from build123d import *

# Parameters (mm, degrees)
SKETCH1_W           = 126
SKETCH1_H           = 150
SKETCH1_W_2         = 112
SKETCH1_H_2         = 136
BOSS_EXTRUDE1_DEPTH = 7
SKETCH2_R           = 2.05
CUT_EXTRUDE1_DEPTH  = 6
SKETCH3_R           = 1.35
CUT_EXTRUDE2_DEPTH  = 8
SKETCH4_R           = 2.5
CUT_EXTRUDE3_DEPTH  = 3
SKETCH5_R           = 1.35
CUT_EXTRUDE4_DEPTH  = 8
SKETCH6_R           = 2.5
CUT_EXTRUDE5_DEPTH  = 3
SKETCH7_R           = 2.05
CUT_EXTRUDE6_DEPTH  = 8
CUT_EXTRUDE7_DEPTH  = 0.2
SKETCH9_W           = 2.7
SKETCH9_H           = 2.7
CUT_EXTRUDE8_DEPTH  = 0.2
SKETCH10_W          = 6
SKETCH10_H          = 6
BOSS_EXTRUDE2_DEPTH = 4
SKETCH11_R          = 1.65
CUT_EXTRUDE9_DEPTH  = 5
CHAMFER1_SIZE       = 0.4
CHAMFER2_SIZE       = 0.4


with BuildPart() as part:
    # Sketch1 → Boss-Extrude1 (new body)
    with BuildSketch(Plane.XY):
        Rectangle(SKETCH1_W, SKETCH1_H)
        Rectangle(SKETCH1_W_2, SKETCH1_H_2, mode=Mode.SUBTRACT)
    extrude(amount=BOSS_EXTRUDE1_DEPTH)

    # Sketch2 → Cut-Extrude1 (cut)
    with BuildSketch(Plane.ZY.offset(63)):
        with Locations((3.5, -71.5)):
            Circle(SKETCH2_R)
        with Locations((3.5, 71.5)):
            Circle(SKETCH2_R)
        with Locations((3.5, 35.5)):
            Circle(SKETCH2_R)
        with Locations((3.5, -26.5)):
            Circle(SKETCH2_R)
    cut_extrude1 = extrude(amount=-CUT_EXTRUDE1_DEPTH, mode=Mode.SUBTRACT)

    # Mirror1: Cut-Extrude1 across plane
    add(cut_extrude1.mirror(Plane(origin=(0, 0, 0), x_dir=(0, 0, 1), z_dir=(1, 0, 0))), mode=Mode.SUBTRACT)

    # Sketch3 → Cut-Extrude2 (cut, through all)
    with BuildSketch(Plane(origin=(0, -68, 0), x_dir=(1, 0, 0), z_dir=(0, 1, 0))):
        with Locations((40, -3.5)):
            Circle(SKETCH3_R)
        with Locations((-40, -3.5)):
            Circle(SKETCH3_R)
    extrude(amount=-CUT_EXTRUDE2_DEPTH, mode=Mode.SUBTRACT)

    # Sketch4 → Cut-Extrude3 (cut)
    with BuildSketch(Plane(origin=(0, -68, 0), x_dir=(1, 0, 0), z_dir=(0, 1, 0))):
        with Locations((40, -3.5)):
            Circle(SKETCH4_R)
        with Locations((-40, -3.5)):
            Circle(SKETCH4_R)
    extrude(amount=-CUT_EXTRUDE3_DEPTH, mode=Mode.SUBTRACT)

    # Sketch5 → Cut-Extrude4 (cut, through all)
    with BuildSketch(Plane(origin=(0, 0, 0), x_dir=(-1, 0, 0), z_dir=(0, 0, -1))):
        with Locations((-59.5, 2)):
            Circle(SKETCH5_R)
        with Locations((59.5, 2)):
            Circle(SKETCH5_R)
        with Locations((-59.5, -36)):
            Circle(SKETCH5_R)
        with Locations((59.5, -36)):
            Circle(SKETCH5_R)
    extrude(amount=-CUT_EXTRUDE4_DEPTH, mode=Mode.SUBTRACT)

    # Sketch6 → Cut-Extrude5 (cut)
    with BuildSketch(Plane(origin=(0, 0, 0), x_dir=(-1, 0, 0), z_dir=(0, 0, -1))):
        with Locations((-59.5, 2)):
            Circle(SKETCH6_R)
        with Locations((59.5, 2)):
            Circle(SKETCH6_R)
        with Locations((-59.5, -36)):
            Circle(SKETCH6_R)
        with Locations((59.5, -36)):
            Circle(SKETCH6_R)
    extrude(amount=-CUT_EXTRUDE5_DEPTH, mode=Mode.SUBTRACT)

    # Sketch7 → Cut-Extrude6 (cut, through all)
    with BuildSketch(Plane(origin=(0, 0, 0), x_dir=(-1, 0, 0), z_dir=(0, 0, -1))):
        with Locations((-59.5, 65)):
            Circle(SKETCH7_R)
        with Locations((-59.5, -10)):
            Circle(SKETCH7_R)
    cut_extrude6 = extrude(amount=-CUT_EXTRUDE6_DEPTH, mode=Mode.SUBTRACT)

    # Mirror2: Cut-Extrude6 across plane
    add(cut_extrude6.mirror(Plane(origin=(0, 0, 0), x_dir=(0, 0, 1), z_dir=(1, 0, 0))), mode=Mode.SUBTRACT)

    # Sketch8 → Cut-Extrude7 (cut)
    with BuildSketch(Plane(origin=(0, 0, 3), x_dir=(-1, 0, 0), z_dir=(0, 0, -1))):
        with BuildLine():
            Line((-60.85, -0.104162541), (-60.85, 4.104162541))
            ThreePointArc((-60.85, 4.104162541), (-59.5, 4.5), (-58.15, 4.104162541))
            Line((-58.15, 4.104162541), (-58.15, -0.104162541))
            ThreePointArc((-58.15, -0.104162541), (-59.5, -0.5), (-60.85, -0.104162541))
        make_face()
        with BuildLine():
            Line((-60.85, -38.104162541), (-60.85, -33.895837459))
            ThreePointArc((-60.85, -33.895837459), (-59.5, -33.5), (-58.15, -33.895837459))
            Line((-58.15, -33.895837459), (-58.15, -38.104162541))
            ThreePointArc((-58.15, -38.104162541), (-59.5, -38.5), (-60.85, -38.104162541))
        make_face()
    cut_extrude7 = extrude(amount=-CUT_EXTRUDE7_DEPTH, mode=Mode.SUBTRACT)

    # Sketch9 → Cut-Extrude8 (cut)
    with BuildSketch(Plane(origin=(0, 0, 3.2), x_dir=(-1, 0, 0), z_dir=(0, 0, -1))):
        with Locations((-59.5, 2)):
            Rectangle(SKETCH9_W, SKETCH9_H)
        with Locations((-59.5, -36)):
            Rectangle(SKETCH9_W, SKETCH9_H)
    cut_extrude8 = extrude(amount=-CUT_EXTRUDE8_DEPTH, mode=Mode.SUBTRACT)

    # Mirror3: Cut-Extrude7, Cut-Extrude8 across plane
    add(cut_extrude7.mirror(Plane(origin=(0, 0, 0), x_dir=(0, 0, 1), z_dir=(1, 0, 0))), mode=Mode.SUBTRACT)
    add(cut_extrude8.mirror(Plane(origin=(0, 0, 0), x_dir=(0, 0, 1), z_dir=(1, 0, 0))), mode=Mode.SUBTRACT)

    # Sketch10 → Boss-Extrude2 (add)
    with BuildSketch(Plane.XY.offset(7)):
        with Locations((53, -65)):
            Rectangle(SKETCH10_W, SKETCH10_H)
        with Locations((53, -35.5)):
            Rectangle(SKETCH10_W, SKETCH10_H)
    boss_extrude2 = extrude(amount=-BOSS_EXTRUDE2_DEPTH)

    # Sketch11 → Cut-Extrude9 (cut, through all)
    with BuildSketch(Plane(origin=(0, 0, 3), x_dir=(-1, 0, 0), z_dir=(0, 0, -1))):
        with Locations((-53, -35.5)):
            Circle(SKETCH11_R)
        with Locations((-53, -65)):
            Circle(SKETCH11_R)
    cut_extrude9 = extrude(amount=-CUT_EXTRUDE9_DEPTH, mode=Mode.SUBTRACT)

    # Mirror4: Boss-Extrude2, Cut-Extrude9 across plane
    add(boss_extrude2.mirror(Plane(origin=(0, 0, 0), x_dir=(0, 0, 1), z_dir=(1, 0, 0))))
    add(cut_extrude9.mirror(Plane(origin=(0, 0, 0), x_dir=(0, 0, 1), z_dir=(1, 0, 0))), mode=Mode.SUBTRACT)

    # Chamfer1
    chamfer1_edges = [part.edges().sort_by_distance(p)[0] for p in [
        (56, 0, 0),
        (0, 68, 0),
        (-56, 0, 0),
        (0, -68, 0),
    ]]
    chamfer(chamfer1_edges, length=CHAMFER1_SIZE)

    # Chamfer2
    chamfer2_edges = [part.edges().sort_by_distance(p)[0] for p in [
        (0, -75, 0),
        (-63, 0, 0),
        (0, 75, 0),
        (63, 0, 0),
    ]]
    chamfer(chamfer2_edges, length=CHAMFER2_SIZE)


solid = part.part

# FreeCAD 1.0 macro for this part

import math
import FreeCAD as App
import Part
import Sketcher
from FreeCAD import Vector
Q = App.Units.Quantity


def edges_at(feature, points):
    """Names of the edges that pass closest to the given points."""
    edges = feature.Shape.Edges
    near = lambda p: min(range(len(edges)), key=lambda i: edges[i].distToShape(Part.Vertex(*p))[0])
    return sorted({f"Edge{near(p) + 1}" for p in points})

doc = App.newDocument("Part")
body = doc.addObject("PartDesign::Body", "Body")

# Sketch on XY plane
sketch1 = body.newObject("Sketcher::SketchObject", "Sketch")
sketch1.AttachmentSupport = (doc.getObject("XY_Plane"), [""])
sketch1.MapMode = "FlatFace"
sketch1.addGeometry([
    Part.LineSegment(Vector(-63, 75, 0), Vector(-63, -75, 0)),  # 0
    Part.LineSegment(Vector(-63, -75, 0), Vector(63, -75, 0)),  # 1
    Part.LineSegment(Vector(63, -75, 0), Vector(63, 75, 0)),  # 2
    Part.LineSegment(Vector(63, 75, 0), Vector(-63, 75, 0)),  # 3
    Part.LineSegment(Vector(56, -68, 0), Vector(-56, -68, 0)),  # 4
    Part.LineSegment(Vector(-56, -68, 0), Vector(-56, 68, 0)),  # 5
    Part.LineSegment(Vector(-56, 68, 0), Vector(56, 68, 0)),  # 6
    Part.LineSegment(Vector(56, 68, 0), Vector(56, -68, 0)),  # 7
], False)
sketch1.addConstraint([
    Sketcher.Constraint("Coincident", 0, 2, 1, 1),
    Sketcher.Constraint("Coincident", 1, 2, 2, 1),
    Sketcher.Constraint("Coincident", 2, 2, 3, 1),
    Sketcher.Constraint("Coincident", 3, 2, 0, 1),
    Sketcher.Constraint("Coincident", 4, 2, 5, 1),
    Sketcher.Constraint("Coincident", 5, 2, 6, 1),
    Sketcher.Constraint("Coincident", 6, 2, 7, 1),
    Sketcher.Constraint("Coincident", 7, 2, 4, 1),
    Sketcher.Constraint("Vertical", 0),
    Sketcher.Constraint("Horizontal", 1),
    Sketcher.Constraint("Vertical", 2),
    Sketcher.Constraint("Horizontal", 3),
    Sketcher.Constraint("Horizontal", 4),
    Sketcher.Constraint("Vertical", 5),
    Sketcher.Constraint("Horizontal", 6),
    Sketcher.Constraint("Vertical", 7),
    Sketcher.Constraint("Symmetric", 0, 2, 2, 2, -1, 1),
    Sketcher.Constraint("Symmetric", 4, 2, 6, 2, -1, 1),
    Sketcher.Constraint("DistanceX", 1, 1, 1, 2, Q("126 mm")),
    Sketcher.Constraint("DistanceX", 4, 2, 4, 1, Q("112 mm")),
    Sketcher.Constraint("DistanceY", 0, 2, 0, 1, Q("150 mm")),
    Sketcher.Constraint("DistanceY", 5, 1, 5, 2, Q("136 mm")),
])
pad1 = body.newObject("PartDesign::Pad", "Pad")
pad1.Profile = sketch1
pad1.Length = 7

# Sketch on YZ plane
sketch2 = body.newObject("Sketcher::SketchObject", "Sketch001")
sketch2.AttachmentSupport = (doc.getObject("YZ_Plane"), [""])
sketch2.MapMode = "FlatFace"
sketch2.AttachmentOffset = App.Placement(Vector(0, 0, -63), App.Rotation())
sketch2.addGeometry([
    Part.Circle(Vector(-71.5, 3.5, 0), Vector(0, 0, 1), 2),
    Part.Circle(Vector(71.5, 3.5, 0), Vector(0, 0, 1), 2),
    Part.Circle(Vector(35.5, 3.5, 0), Vector(0, 0, 1), 2),
    Part.Circle(Vector(-26.5, 3.5, 0), Vector(0, 0, 1), 2),
], False)
sketch2.addConstraint([
    Sketcher.Constraint("Equal", 0, 1),
    Sketcher.Constraint("Equal", 1, 2),
    Sketcher.Constraint("Equal", 2, 3),
    Sketcher.Constraint("Symmetric", 0, 3, 1, 3, -2),
    Sketcher.Constraint("Horizontal", 1, 3, 2, 3),
    Sketcher.Constraint("Horizontal", 2, 3, 3, 3),
    Sketcher.Constraint("Diameter", 0, Q("4.1 mm")),
    Sketcher.Constraint("DistanceX", 0, 3, 1, 3, Q("143 mm")),
    Sketcher.Constraint("DistanceX", 2, 3, 1, 3, Q("36 mm")),
    Sketcher.Constraint("DistanceX", 0, 3, 3, 3, Q("45 mm")),
    Sketcher.Constraint("DistanceY", -1, 1, 0, 3, Q("3.5 mm")),
])
pocket1 = body.newObject("PartDesign::Pocket", "Pocket")
pocket1.Profile = sketch2
pocket1.Length = 6
pocket1.Reversed = True
doc.recompute()

mirrored = body.newObject("PartDesign::Mirrored", "Mirrored")
mirrored.Originals = [pocket1]
mirrored.MirrorPlane = (doc.getObject("YZ_Plane"), [""])
body.Tip = mirrored

# Sketch on XZ plane
sketch3 = body.newObject("Sketcher::SketchObject", "Sketch002")
sketch3.AttachmentSupport = (doc.getObject("XZ_Plane"), [""])
sketch3.MapMode = "FlatFace"
sketch3.AttachmentOffset = App.Placement(Vector(0, 0, 68), App.Rotation())
sketch3.addGeometry([
    Part.Circle(Vector(40, 3.5, 0), Vector(0, 0, 1), 1.4),
    Part.Circle(Vector(-40, 3.5, 0), Vector(0, 0, 1), 1.4),
], False)
sketch3.addConstraint([
    Sketcher.Constraint("Equal", 0, 1),
    Sketcher.Constraint("Symmetric", 0, 3, 1, 3, -2),
    Sketcher.Constraint("Diameter", 0, Q("2.7 mm")),
    Sketcher.Constraint("DistanceX", -1, 1, 0, 3, Q("40 mm")),
    Sketcher.Constraint("DistanceY", -1, 1, 0, 3, Q("3.5 mm")),
])
pocket2 = body.newObject("PartDesign::Pocket", "Pocket001")
pocket2.Profile = sketch3
pocket2.Type = "ThroughAll"
pocket2.Reversed = True

# Sketch on XZ plane
sketch4 = body.newObject("Sketcher::SketchObject", "Sketch003")
sketch4.AttachmentSupport = (doc.getObject("XZ_Plane"), [""])
sketch4.MapMode = "FlatFace"
sketch4.AttachmentOffset = App.Placement(Vector(0, 0, 68), App.Rotation())
sketch4.addGeometry([
    Part.Circle(Vector(40, 3.5, 0), Vector(0, 0, 1), 2.5),
    Part.Circle(Vector(-40, 3.5, 0), Vector(0, 0, 1), 2.5),
], False)
sketch4.addConstraint([
    Sketcher.Constraint("Equal", 0, 1),
    Sketcher.Constraint("Symmetric", 0, 3, 1, 3, -2),
    Sketcher.Constraint("Diameter", 0, Q("5 mm")),
    Sketcher.Constraint("DistanceX", -1, 1, 0, 3, Q("40 mm")),
    Sketcher.Constraint("DistanceY", -1, 1, 0, 3, Q("3.5 mm")),
])
pocket3 = body.newObject("PartDesign::Pocket", "Pocket002")
pocket3.Profile = sketch4
pocket3.Length = 3
pocket3.Reversed = True

# Sketch on XY plane
sketch5 = body.newObject("Sketcher::SketchObject", "Sketch004")
sketch5.AttachmentSupport = (doc.getObject("XY_Plane"), [""])
sketch5.MapMode = "FlatFace"
sketch5.addGeometry([
    Part.Circle(Vector(59.5, 2, 0), Vector(0, 0, 1), 1.4),
    Part.Circle(Vector(-59.5, 2, 0), Vector(0, 0, 1), 1.4),
    Part.Circle(Vector(59.5, -36, 0), Vector(0, 0, 1), 1.4),
    Part.Circle(Vector(-59.5, -36, 0), Vector(0, 0, 1), 1.4),
], False)
sketch5.addConstraint([
    Sketcher.Constraint("Equal", 0, 1),
    Sketcher.Constraint("Equal", 1, 2),
    Sketcher.Constraint("Equal", 2, 3),
    Sketcher.Constraint("Symmetric", 0, 3, 1, 3, -2),
    Sketcher.Constraint("Symmetric", 2, 3, 3, 3, -2),
    Sketcher.Constraint("Vertical", 0, 3, 2, 3),
    Sketcher.Constraint("Diameter", 0, Q("2.7 mm")),
    Sketcher.Constraint("DistanceY", -1, 1, 0, 3, Q("2 mm")),
    Sketcher.Constraint("DistanceY", 2, 3, -1, 1, Q("36 mm")),
    Sketcher.Constraint("DistanceX", 1, 3, 0, 3, Q("119 mm")),
])
pocket4 = body.newObject("PartDesign::Pocket", "Pocket003")
pocket4.Profile = sketch5
pocket4.Type = "ThroughAll"
pocket4.Reversed = True

# Sketch on XY plane
sketch6 = body.newObject("Sketcher::SketchObject", "Sketch005")
sketch6.AttachmentSupport = (doc.getObject("XY_Plane"), [""])
sketch6.MapMode = "FlatFace"
sketch6.addGeometry([
    Part.Circle(Vector(59.5, 2, 0), Vector(0, 0, 1), 2.5),
    Part.Circle(Vector(-59.5, 2, 0), Vector(0, 0, 1), 2.5),
    Part.Circle(Vector(59.5, -36, 0), Vector(0, 0, 1), 2.5),
    Part.Circle(Vector(-59.5, -36, 0), Vector(0, 0, 1), 2.5),
], False)
sketch6.addConstraint([
    Sketcher.Constraint("Equal", 0, 1),
    Sketcher.Constraint("Equal", 1, 2),
    Sketcher.Constraint("Equal", 2, 3),
    Sketcher.Constraint("Symmetric", 0, 3, 1, 3, -2),
    Sketcher.Constraint("Symmetric", 2, 3, 3, 3, -2),
    Sketcher.Constraint("Vertical", 0, 3, 2, 3),
    Sketcher.Constraint("Diameter", 0, Q("5 mm")),
    Sketcher.Constraint("DistanceY", -1, 1, 0, 3, Q("2 mm")),
    Sketcher.Constraint("DistanceY", 2, 3, -1, 1, Q("36 mm")),
    Sketcher.Constraint("DistanceX", 1, 3, 0, 3, Q("119 mm")),
])
pocket5 = body.newObject("PartDesign::Pocket", "Pocket004")
pocket5.Profile = sketch6
pocket5.Length = 3
pocket5.Reversed = True

# Sketch on XY plane
sketch7 = body.newObject("Sketcher::SketchObject", "Sketch006")
sketch7.AttachmentSupport = (doc.getObject("XY_Plane"), [""])
sketch7.MapMode = "FlatFace"
sketch7.addGeometry([
    Part.Circle(Vector(59.5, 65, 0), Vector(0, 0, 1), 2),
    Part.Circle(Vector(59.5, -10, 0), Vector(0, 0, 1), 2),
], False)
sketch7.addConstraint([
    Sketcher.Constraint("Equal", 0, 1),
    Sketcher.Constraint("Vertical", 0, 3, 1, 3),
    Sketcher.Constraint("Diameter", 0, Q("4.1 mm")),
    Sketcher.Constraint("DistanceY", -1, 1, 0, 3, Q("65 mm")),
    Sketcher.Constraint("DistanceY", 1, 3, -1, 1, Q("10 mm")),
    Sketcher.Constraint("DistanceX", -1, 1, 0, 3, Q("59.5 mm")),
])
pocket6 = body.newObject("PartDesign::Pocket", "Pocket005")
pocket6.Profile = sketch7
pocket6.Type = "ThroughAll"
pocket6.Reversed = True
doc.recompute()

mirrored2 = body.newObject("PartDesign::Mirrored", "Mirrored001")
mirrored2.Originals = [pocket6]
mirrored2.MirrorPlane = (doc.getObject("YZ_Plane"), [""])
body.Tip = mirrored2

# Sketch on XY plane
sketch8 = body.newObject("Sketcher::SketchObject", "Sketch007")
sketch8.AttachmentSupport = (doc.getObject("XY_Plane"), [""])
sketch8.MapMode = "FlatFace"
sketch8.AttachmentOffset = App.Placement(Vector(0, 0, 3), App.Rotation())
sketch8.addGeometry([
    Part.LineSegment(Vector(60.9, 4.1, 0), Vector(60.9, -0.1, 0)),  # 0
    Part.ArcOfCircle(Part.Circle(Vector(59.5, 2, 0), Vector(0, 0, 1), 2.5), math.radians(-123), math.radians(-57)),  # 1
    Part.LineSegment(Vector(58.1, -0.1, 0), Vector(58.1, 4.1, 0)),  # 2
    Part.ArcOfCircle(Part.Circle(Vector(59.5, 2, 0), Vector(0, 0, 1), 2.5), math.radians(57), math.radians(123)),  # 3
    Part.LineSegment(Vector(60.9, -33.9, 0), Vector(60.9, -38.1, 0)),  # 4
    Part.ArcOfCircle(Part.Circle(Vector(59.5, -36, 0), Vector(0, 0, 1), 2.5), math.radians(-123), math.radians(-57)),  # 5
    Part.LineSegment(Vector(58.1, -38.1, 0), Vector(58.1, -33.9, 0)),  # 6
    Part.ArcOfCircle(Part.Circle(Vector(59.5, -36, 0), Vector(0, 0, 1), 2.5), math.radians(57), math.radians(123)),  # 7
], False)
sketch8.addConstraint([
    Sketcher.Constraint("Coincident", 0, 2, 1, 2),
    Sketcher.Constraint("Coincident", 1, 1, 2, 1),
    Sketcher.Constraint("Coincident", 2, 2, 3, 2),
    Sketcher.Constraint("Coincident", 3, 1, 0, 1),
    Sketcher.Constraint("Coincident", 4, 2, 5, 2),
    Sketcher.Constraint("Coincident", 5, 1, 6, 1),
    Sketcher.Constraint("Coincident", 6, 2, 7, 2),
    Sketcher.Constraint("Coincident", 7, 1, 4, 1),
    Sketcher.Constraint("Vertical", 0),
    Sketcher.Constraint("Vertical", 2),
    Sketcher.Constraint("Vertical", 4),
    Sketcher.Constraint("Vertical", 6),
    Sketcher.Constraint("Coincident", 3, 3, 1, 3),
    Sketcher.Constraint("Coincident", 7, 3, 5, 3),
    Sketcher.Constraint("Equal", 1, 3),
    Sketcher.Constraint("Equal", 3, 5),
    Sketcher.Constraint("Equal", 5, 7),
    Sketcher.Constraint("Horizontal", 0, 2, 1, 1),
    Sketcher.Constraint("Horizontal", 4, 2, 5, 1),
    Sketcher.Constraint("Vertical", 3, 3, 5, 3),
    Sketcher.Constraint("Vertical", 3, 1, 4, 2),
    Sketcher.Constraint("Radius", 1, Q("2.5 mm")),
    Sketcher.Constraint("DistanceY", -1, 1, 1, 3, Q("2 mm")),
    Sketcher.Constraint("DistanceY", 5, 3, -1, 1, Q("36 mm")),
    Sketcher.Constraint("DistanceX", -1, 1, 1, 3, Q("59.5 mm")),
    Sketcher.Constraint("DistanceX", 1, 1, 0, 2, Q("2.7 mm")),
])
pocket7 = body.newObject("PartDesign::Pocket", "Pocket006")
pocket7.Profile = sketch8
pocket7.Length = 0.2
pocket7.Reversed = True

# Sketch on XY plane
sketch9 = body.newObject("Sketcher::SketchObject", "Sketch008")
sketch9.AttachmentSupport = (doc.getObject("XY_Plane"), [""])
sketch9.MapMode = "FlatFace"
sketch9.AttachmentOffset = App.Placement(Vector(0, 0, 3.2), App.Rotation())
sketch9.addGeometry([
    Part.LineSegment(Vector(60.9, 3.4, 0), Vector(60.9, 0.7, 0)),  # 0
    Part.LineSegment(Vector(60.9, 0.7, 0), Vector(58.1, 0.7, 0)),  # 1
    Part.LineSegment(Vector(58.1, 0.7, 0), Vector(58.1, 3.4, 0)),  # 2
    Part.LineSegment(Vector(58.1, 3.4, 0), Vector(60.9, 3.4, 0)),  # 3
    Part.LineSegment(Vector(60.9, -34.6, 0), Vector(60.9, -37.4, 0)),  # 4
    Part.LineSegment(Vector(60.9, -37.4, 0), Vector(58.1, -37.4, 0)),  # 5
    Part.LineSegment(Vector(58.1, -37.4, 0), Vector(58.1, -34.6, 0)),  # 6
    Part.LineSegment(Vector(58.1, -34.6, 0), Vector(60.9, -34.6, 0)),  # 7
], False)
sketch9.addConstraint([
    Sketcher.Constraint("Coincident", 0, 2, 1, 1),
    Sketcher.Constraint("Coincident", 1, 2, 2, 1),
    Sketcher.Constraint("Coincident", 2, 2, 3, 1),
    Sketcher.Constraint("Coincident", 3, 2, 0, 1),
    Sketcher.Constraint("Coincident", 4, 2, 5, 1),
    Sketcher.Constraint("Coincident", 5, 2, 6, 1),
    Sketcher.Constraint("Coincident", 6, 2, 7, 1),
    Sketcher.Constraint("Coincident", 7, 2, 4, 1),
    Sketcher.Constraint("Vertical", 0),
    Sketcher.Constraint("Horizontal", 1),
    Sketcher.Constraint("Vertical", 2),
    Sketcher.Constraint("Horizontal", 3),
    Sketcher.Constraint("Vertical", 4),
    Sketcher.Constraint("Horizontal", 5),
    Sketcher.Constraint("Vertical", 6),
    Sketcher.Constraint("Horizontal", 7),
    Sketcher.Constraint("Vertical", 3, 2, 4, 2),
    Sketcher.Constraint("Vertical", 2, 2, 5, 2),
    Sketcher.Constraint("Equal", 7, 0),
    Sketcher.Constraint("Equal", 2, 4),
    Sketcher.Constraint("DistanceX", 1, 2, 1, 1, Q("2.7 mm")),
    Sketcher.Constraint("DistanceY", 4, 2, 0, 2, Q("38 mm")),
    Sketcher.Constraint("DistanceX", -1, 1, 0, 2, Q("60.85 mm")),
    Sketcher.Constraint("DistanceY", -1, 1, 0, 2, Q("0.65 mm")),
])
pocket8 = body.newObject("PartDesign::Pocket", "Pocket007")
pocket8.Profile = sketch9
pocket8.Length = 0.2
pocket8.Reversed = True
doc.recompute()

mirrored3 = body.newObject("PartDesign::Mirrored", "Mirrored002")
mirrored3.Originals = [pocket7, pocket8]
mirrored3.MirrorPlane = (doc.getObject("YZ_Plane"), [""])
body.Tip = mirrored3

# Sketch on XY plane
sketch10 = body.newObject("Sketcher::SketchObject", "Sketch009")
sketch10.AttachmentSupport = (doc.getObject("XY_Plane"), [""])
sketch10.MapMode = "FlatFace"
sketch10.AttachmentOffset = App.Placement(Vector(0, 0, 7), App.Rotation())
sketch10.addGeometry([
    Part.LineSegment(Vector(50, -62, 0), Vector(50, -68, 0)),  # 0
    Part.LineSegment(Vector(50, -68, 0), Vector(56, -68, 0)),  # 1
    Part.LineSegment(Vector(56, -68, 0), Vector(56, -62, 0)),  # 2
    Part.LineSegment(Vector(56, -62, 0), Vector(50, -62, 0)),  # 3
    Part.LineSegment(Vector(50, -32, 0), Vector(50, -38, 0)),  # 4
    Part.LineSegment(Vector(50, -38, 0), Vector(56, -38, 0)),  # 5
    Part.LineSegment(Vector(56, -38, 0), Vector(56, -32, 0)),  # 6
    Part.LineSegment(Vector(56, -32, 0), Vector(50, -32, 0)),  # 7
], False)
sketch10.addConstraint([
    Sketcher.Constraint("Coincident", 0, 2, 1, 1),
    Sketcher.Constraint("Coincident", 1, 2, 2, 1),
    Sketcher.Constraint("Coincident", 2, 2, 3, 1),
    Sketcher.Constraint("Coincident", 3, 2, 0, 1),
    Sketcher.Constraint("Coincident", 4, 2, 5, 1),
    Sketcher.Constraint("Coincident", 5, 2, 6, 1),
    Sketcher.Constraint("Coincident", 6, 2, 7, 1),
    Sketcher.Constraint("Coincident", 7, 2, 4, 1),
    Sketcher.Constraint("Vertical", 0),
    Sketcher.Constraint("Horizontal", 1),
    Sketcher.Constraint("Vertical", 2),
    Sketcher.Constraint("Horizontal", 3),
    Sketcher.Constraint("Vertical", 4),
    Sketcher.Constraint("Horizontal", 5),
    Sketcher.Constraint("Vertical", 6),
    Sketcher.Constraint("Horizontal", 7),
    Sketcher.Constraint("Vertical", 3, 2, 4, 2),
    Sketcher.Constraint("Vertical", 2, 2, 5, 2),
    Sketcher.Constraint("Equal", 7, 0),
    Sketcher.Constraint("Equal", 2, 4),
    Sketcher.Constraint("DistanceX", 1, 1, 1, 2, Q("6 mm")),
    Sketcher.Constraint("DistanceX", -1, 1, 0, 2, Q("50 mm")),
    Sketcher.Constraint("DistanceY", 0, 2, -1, 1, Q("68 mm")),
    Sketcher.Constraint("DistanceY", 4, 2, -1, 1, Q("38.5 mm")),
])
pad2 = body.newObject("PartDesign::Pad", "Pad001")
pad2.Profile = sketch10
pad2.Length = 4
pad2.Reversed = True

# Sketch on XY plane
sketch11 = body.newObject("Sketcher::SketchObject", "Sketch010")
sketch11.AttachmentSupport = (doc.getObject("XY_Plane"), [""])
sketch11.MapMode = "FlatFace"
sketch11.AttachmentOffset = App.Placement(Vector(0, 0, 3), App.Rotation())
sketch11.addGeometry([
    Part.Circle(Vector(53, -35.5, 0), Vector(0, 0, 1), 1.6),
    Part.Circle(Vector(53, -65, 0), Vector(0, 0, 1), 1.6),
], False)
sketch11.addConstraint([
    Sketcher.Constraint("Equal", 0, 1),
    Sketcher.Constraint("Vertical", 0, 3, 1, 3),
    Sketcher.Constraint("Diameter", 0, Q("3.3 mm")),
    Sketcher.Constraint("DistanceX", -1, 1, 0, 3, Q("53 mm")),
    Sketcher.Constraint("DistanceY", 1, 3, -1, 1, Q("65 mm")),
    Sketcher.Constraint("DistanceY", 0, 3, -1, 1, Q("35.5 mm")),
])
pocket9 = body.newObject("PartDesign::Pocket", "Pocket008")
pocket9.Profile = sketch11
pocket9.Type = "ThroughAll"
pocket9.Reversed = True
doc.recompute()

mirrored4 = body.newObject("PartDesign::Mirrored", "Mirrored003")
mirrored4.Originals = [pad2, pocket9]
mirrored4.MirrorPlane = (doc.getObject("YZ_Plane"), [""])
body.Tip = mirrored4
doc.recompute()

chamfer = body.newObject("PartDesign::Chamfer", "Chamfer")
chamfer.Base = (mirrored4, edges_at(mirrored4, [
    (56, 0, 0),
    (0, 68, 0),
    (-56, 0, 0),
    (0, -68, 0),
]))
chamfer.Size = 0.4
doc.recompute()

chamfer2 = body.newObject("PartDesign::Chamfer", "Chamfer001")
chamfer2.Base = (chamfer, edges_at(chamfer, [
    (0, -75, 0),
    (-63, 0, 0),
    (0, 75, 0),
    (63, 0, 0),
]))
chamfer2.Size = 0.4

doc.recompute()
